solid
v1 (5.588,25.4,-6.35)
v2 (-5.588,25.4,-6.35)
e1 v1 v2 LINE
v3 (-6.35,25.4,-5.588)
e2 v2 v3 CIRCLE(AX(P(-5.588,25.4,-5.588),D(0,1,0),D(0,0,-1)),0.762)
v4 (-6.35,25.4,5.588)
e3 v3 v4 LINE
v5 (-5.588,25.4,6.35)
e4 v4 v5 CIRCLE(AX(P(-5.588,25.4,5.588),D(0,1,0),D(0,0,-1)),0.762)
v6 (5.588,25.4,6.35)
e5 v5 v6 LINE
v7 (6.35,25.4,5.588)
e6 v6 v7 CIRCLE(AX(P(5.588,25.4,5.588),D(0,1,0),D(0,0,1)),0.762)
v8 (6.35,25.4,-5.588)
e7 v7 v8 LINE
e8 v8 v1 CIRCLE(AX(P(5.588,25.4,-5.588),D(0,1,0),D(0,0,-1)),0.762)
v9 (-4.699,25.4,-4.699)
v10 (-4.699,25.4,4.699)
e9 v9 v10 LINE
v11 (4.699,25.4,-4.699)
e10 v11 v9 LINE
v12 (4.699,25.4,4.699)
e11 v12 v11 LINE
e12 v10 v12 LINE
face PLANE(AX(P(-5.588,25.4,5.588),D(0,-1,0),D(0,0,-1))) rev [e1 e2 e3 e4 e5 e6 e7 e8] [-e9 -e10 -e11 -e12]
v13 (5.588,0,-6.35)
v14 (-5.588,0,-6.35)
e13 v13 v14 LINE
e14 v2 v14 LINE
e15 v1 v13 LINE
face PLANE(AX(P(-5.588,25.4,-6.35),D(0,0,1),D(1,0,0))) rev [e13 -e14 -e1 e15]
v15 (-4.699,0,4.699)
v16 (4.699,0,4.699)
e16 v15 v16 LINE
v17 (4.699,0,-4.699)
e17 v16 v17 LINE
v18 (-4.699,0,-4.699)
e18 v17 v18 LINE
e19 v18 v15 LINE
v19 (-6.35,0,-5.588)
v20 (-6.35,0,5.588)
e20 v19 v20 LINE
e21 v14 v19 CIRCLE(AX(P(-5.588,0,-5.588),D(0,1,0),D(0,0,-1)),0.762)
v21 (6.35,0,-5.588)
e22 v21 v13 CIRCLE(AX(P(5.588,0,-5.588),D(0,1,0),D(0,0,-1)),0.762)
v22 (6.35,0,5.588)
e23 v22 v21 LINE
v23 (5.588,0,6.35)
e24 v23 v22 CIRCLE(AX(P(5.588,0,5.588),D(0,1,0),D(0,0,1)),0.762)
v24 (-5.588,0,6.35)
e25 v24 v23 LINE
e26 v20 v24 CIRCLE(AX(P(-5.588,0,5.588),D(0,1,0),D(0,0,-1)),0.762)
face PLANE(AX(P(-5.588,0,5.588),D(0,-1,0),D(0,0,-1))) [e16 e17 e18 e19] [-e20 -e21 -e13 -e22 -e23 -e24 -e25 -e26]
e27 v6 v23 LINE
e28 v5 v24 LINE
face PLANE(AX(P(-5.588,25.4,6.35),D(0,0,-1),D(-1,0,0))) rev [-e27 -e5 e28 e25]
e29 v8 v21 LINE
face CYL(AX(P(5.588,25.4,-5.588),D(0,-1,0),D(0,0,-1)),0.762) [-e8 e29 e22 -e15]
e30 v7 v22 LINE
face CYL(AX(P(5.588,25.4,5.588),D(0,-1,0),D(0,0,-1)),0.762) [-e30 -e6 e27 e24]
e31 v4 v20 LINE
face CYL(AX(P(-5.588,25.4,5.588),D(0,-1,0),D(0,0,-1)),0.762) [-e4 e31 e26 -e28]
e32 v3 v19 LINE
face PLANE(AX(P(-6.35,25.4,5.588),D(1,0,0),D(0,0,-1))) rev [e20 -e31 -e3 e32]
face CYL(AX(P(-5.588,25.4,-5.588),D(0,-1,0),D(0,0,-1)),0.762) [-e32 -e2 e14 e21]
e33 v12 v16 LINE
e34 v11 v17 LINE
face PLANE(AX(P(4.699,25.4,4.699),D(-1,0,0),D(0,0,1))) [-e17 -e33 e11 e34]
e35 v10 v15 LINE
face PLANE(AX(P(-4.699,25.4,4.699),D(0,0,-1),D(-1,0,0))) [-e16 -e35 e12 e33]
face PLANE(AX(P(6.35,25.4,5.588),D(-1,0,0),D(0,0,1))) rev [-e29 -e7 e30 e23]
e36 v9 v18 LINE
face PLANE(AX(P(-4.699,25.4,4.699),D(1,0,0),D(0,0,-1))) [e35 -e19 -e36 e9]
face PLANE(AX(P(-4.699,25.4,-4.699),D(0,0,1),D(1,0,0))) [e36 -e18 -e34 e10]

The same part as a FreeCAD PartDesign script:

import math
import FreeCAD as App
import Part
import Sketcher
from FreeCAD import Vector
Q = App.Units.Quantity

doc = App.newDocument("Part")
params = doc.addObject("Spreadsheet::Sheet", "Params")
for row, (alias, value) in enumerate([
    ("sketch1_radius", "0.03 in"),
    ("sketch1_width", "0.44 in"),
    ("sketch1_width2", "0.37 in"),
    ("pad1_length", "1 in"),
], start=1):
    params.set(f"A{row}", alias)
    params.set(f"B{row}", "=" + value)
    params.setAlias(f"B{row}", alias)

body = doc.addObject("PartDesign::Body", "Body")

sketch1 = body.newObject("Sketcher::SketchObject", "Sketch")
sketch1.AttachmentSupport = (doc.getObject("XZ_Plane"), [""])
sketch1.MapMode = "FlatFace"
sketch1.addGeometry(Part.LineSegment(Vector(-5.588, 6.35, 0), Vector(5.588, 6.35, 0)), False)
sketch1.addGeometry(Part.ArcOfCircle(Part.Circle(Vector(5.588, 5.588, 0), Vector(0, 0, 1), 0.762), math.radians(0), math.radians(90)), False)
sketch1.addGeometry(Part.LineSegment(Vector(6.35, 5.588, 0), Vector(6.35, -5.588, 0)), False)
sketch1.addGeometry(Part.ArcOfCircle(Part.Circle(Vector(5.588, -5.588, 0), Vector(0, 0, 1), 0.762), math.radians(-90), math.radians(0)), False)
sketch1.addGeometry(Part.LineSegment(Vector(5.588, -6.35, 0), Vector(-5.588, -6.35, 0)), False)
sketch1.addGeometry(Part.ArcOfCircle(Part.Circle(Vector(-5.588, -5.588, 0), Vector(0, 0, 1), 0.762), math.radians(-180), math.radians(-90)), False)
sketch1.addGeometry(Part.LineSegment(Vector(-6.35, -5.588, 0), Vector(-6.35, 5.588, 0)), False)
sketch1.addGeometry(Part.ArcOfCircle(Part.Circle(Vector(-5.588, 5.588, 0), Vector(0, 0, 1), 0.762), math.radians(90), math.radians(180)), False)
sketch1.addGeometry(Part.LineSegment(Vector(4.699, 4.699, 0), Vector(-4.699, 4.699, 0)), False)
sketch1.addGeometry(Part.LineSegment(Vector(-4.699, 4.699, 0), Vector(-4.699, -4.699, 0)), False)
sketch1.addGeometry(Part.LineSegment(Vector(-4.699, -4.699, 0), Vector(4.699, -4.699, 0)), False)
sketch1.addGeometry(Part.LineSegment(Vector(4.699, -4.699, 0), Vector(4.699, 4.699, 0)), False)
sketch1.addConstraint(Sketcher.Constraint("Tangent", 0, 2, 1, 2))
sketch1.addConstraint(Sketcher.Constraint("Tangent", 1, 1, 2, 1))
sketch1.addConstraint(Sketcher.Constraint("Tangent", 2, 2, 3, 2))
sketch1.addConstraint(Sketcher.Constraint("Tangent", 3, 1, 4, 1))
sketch1.addConstraint(Sketcher.Constraint("Tangent", 4, 2, 5, 2))
sketch1.addConstraint(Sketcher.Constraint("Tangent", 5, 1, 6, 1))
sketch1.addConstraint(Sketcher.Constraint("Tangent", 6, 2, 7, 2))
sketch1.addConstraint(Sketcher.Constraint("Tangent", 7, 1, 0, 1))
sketch1.addConstraint(Sketcher.Constraint("Coincident", 8, 2, 9, 1))
sketch1.addConstraint(Sketcher.Constraint("Coincident", 9, 2, 10, 1))
sketch1.addConstraint(Sketcher.Constraint("Coincident", 10, 2, 11, 1))
sketch1.addConstraint(Sketcher.Constraint("Coincident", 11, 2, 8, 1))
sketch1.addConstraint(Sketcher.Constraint("Horizontal", 0))
sketch1.addConstraint(Sketcher.Constraint("Vertical", 2))
sketch1.addConstraint(Sketcher.Constraint("Horizontal", 4))
sketch1.addConstraint(Sketcher.Constraint("Vertical", 6))
sketch1.addConstraint(Sketcher.Constraint("Horizontal", 8))
sketch1.addConstraint(Sketcher.Constraint("Vertical", 9))
sketch1.addConstraint(Sketcher.Constraint("Horizontal", 10))
sketch1.addConstraint(Sketcher.Constraint("Vertical", 11))
sketch1.addConstraint(Sketcher.Constraint("Equal", 1, 3))
sketch1.addConstraint(Sketcher.Constraint("Equal", 3, 5))
sketch1.addConstraint(Sketcher.Constraint("Equal", 5, 7))
sketch1.addConstraint(Sketcher.Constraint("Symmetric", 1, 3, 5, 3, -1, 1))
sketch1.addConstraint(Sketcher.Constraint("Symmetric", 8, 2, 10, 2, -1, 1))
sketch1.addConstraint(Sketcher.Constraint("Equal", 4, 2))
sketch1.addConstraint(Sketcher.Constraint("Equal", 10, 9))
sketch1.addConstraint(Sketcher.Constraint("Radius", 1, Q("0.03 in")))
sketch1.addConstraint(Sketcher.Constraint("DistanceX", 0, 1, 0, 2, Q("0.44 in")))
sketch1.addConstraint(Sketcher.Constraint("DistanceX", 8, 2, 8, 1, Q("0.37 in")))
sketch1.setExpression("Constraints[27]", "Params.sketch1_radius")
sketch1.setExpression("Constraints[28]", "Params.sketch1_width")
sketch1.setExpression("Constraints[29]", "Params.sketch1_width2")
pad1 = body.newObject("PartDesign::Pad", "Pad")
pad1.Profile = sketch1
pad1.setExpression("Length", "Params.pad1_length")
pad1.Reversed = True

doc.recompute()
